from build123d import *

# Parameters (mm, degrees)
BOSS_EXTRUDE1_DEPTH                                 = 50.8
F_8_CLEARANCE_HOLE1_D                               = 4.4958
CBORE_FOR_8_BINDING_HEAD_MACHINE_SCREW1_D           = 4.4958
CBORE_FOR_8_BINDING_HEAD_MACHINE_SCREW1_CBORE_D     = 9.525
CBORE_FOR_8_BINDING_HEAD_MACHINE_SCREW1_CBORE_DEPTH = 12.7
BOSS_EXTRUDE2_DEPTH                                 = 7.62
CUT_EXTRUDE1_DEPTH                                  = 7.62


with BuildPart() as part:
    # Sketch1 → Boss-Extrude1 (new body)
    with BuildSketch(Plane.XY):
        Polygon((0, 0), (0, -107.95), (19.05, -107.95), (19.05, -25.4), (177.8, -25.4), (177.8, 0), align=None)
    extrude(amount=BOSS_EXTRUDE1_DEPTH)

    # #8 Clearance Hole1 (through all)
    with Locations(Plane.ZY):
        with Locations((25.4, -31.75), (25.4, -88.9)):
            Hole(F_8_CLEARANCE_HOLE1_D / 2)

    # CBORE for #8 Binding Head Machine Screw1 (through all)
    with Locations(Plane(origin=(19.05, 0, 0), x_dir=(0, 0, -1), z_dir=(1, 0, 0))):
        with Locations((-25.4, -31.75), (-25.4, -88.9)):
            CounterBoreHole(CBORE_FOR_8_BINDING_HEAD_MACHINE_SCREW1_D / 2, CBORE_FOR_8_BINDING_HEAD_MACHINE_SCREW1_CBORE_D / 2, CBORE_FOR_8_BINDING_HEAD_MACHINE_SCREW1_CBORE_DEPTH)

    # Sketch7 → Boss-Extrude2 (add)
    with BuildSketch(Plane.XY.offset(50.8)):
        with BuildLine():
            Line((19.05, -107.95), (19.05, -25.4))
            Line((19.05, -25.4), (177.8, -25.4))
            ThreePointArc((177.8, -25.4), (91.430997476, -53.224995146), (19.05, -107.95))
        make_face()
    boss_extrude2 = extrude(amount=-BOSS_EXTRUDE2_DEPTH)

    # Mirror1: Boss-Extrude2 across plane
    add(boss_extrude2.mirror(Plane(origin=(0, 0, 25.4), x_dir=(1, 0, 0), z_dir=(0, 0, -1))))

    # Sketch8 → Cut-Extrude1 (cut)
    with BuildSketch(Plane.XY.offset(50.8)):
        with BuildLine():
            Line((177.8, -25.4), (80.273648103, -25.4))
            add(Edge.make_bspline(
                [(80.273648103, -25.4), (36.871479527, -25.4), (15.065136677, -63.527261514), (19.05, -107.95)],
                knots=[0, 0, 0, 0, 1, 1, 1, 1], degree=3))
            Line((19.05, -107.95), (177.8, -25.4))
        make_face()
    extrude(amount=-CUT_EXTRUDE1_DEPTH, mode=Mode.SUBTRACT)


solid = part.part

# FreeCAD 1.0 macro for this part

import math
import FreeCAD as App
import Part
import Sketcher
from FreeCAD import Vector
Q = App.Units.Quantity

doc = App.newDocument("Part")
params = doc.addObject("Spreadsheet::Sheet", "Params")
for row, (alias, value) in enumerate([
    ("sketch1_width", "7 in"),
    ("sketch1_height", "1 in"),
    ("sketch1_width2", "0.75 in"),
    ("sketch1_height2", "4.25 in"),
    ("pad1_length", "2 in"),
    ("sketch2_diameter", "0.177 in"),
    ("hole_diameter", "0.177 in"),
    ("sketch3_diameter", "0.177 in"),
    ("hole2_diameter", "0.177 in"),
    ("hole2_cbore_diameter", "0.375 in"),
    ("hole2_cbore_depth", "0.5 in"),
    ("sketch4_width", "6.25 in"),
    ("sketch4_height", "3.25 in"),
    ("pad2_length", "0.3 in"),
    ("pocket1_length", "0.3 in"),
], start=1):
    params.set(f"A{row}", alias)
    params.set(f"B{row}", "=" + value)
    params.setAlias(f"B{row}", alias)

body = doc.addObject("PartDesign::Body", "Body")

# Sketch on XY plane
sketch1 = body.newObject("Sketcher::SketchObject", "Sketch")
sketch1.AttachmentSupport = (doc.getObject("XY_Plane"), [""])
sketch1.MapMode = "FlatFace"
sketch1.addGeometry([
    Part.LineSegment(Vector(0, 0, 0), Vector(0, -108, 0)),  # 0
    Part.LineSegment(Vector(0, -108, 0), Vector(19, -108, 0)),  # 1
    Part.LineSegment(Vector(19, -108, 0), Vector(19, -25, 0)),  # 2
    Part.LineSegment(Vector(19, -25, 0), Vector(178, -25, 0)),  # 3
    Part.LineSegment(Vector(178, -25, 0), Vector(178, 0, 0)),  # 4
    Part.LineSegment(Vector(178, 0, 0), Vector(0, 0, 0)),  # 5
], False)
sketch1.addConstraint([
    Sketcher.Constraint("Coincident", 0, 2, 1, 1),
    Sketcher.Constraint("Coincident", 1, 2, 2, 1),
    Sketcher.Constraint("Coincident", 2, 2, 3, 1),
    Sketcher.Constraint("Coincident", 3, 2, 4, 1),
    Sketcher.Constraint("Coincident", 4, 2, 5, 1),
    Sketcher.Constraint("Coincident", 5, 2, 0, 1),
    Sketcher.Constraint("Vertical", 0),
    Sketcher.Constraint("Horizontal", 1),
    Sketcher.Constraint("Vertical", 2),
    Sketcher.Constraint("Horizontal", 3),
    Sketcher.Constraint("Vertical", 4),
    Sketcher.Constraint("Horizontal", 5),
    Sketcher.Constraint("Coincident", 5, 2, -1, 1),
    Sketcher.Constraint("DistanceX", 5, 2, 5, 1, Q("7 in")),
    Sketcher.Constraint("DistanceY", 4, 1, 4, 2, Q("1 in")),
    Sketcher.Constraint("DistanceX", 1, 1, 1, 2, Q("0.75 in")),
    Sketcher.Constraint("DistanceY", 0, 2, 0, 1, Q("4.25 in")),
])
sketch1.setExpression("Constraints[13]", "Params.sketch1_width")
sketch1.setExpression("Constraints[14]", "Params.sketch1_height")
sketch1.setExpression("Constraints[15]", "Params.sketch1_width2")
sketch1.setExpression("Constraints[16]", "Params.sketch1_height2")
pad1 = body.newObject("PartDesign::Pad", "Pad")
pad1.Profile = sketch1
pad1.setExpression("Length", "Params.pad1_length")

# Sketch on YZ plane
sketch2 = body.newObject("Sketcher::SketchObject", "Sketch001")
sketch2.AttachmentSupport = (doc.getObject("YZ_Plane"), [""])
sketch2.MapMode = "FlatFace"
sketch2.addGeometry([
    Part.Circle(Vector(-31.8, 25.4, 0), Vector(0, 0, 1), 2.2),
    Part.Circle(Vector(-88.9, 25.4, 0), Vector(0, 0, 1), 2.2),
], False)
sketch2.addConstraint([
    Sketcher.Constraint("Equal", 0, 1),
    Sketcher.Constraint("Horizontal", 0, 3, 1, 3),
    Sketcher.Constraint("Diameter", 0, Q("0.177 in")),
    Sketcher.Constraint("DistanceY", -1, 1, 0, 3, Q("1 in")),
    Sketcher.Constraint("DistanceX", 1, 3, -1, 1, Q("3.5 in")),
    Sketcher.Constraint("DistanceX", 0, 3, -1, 1, Q("1.25 in")),
])
sketch2.setExpression("Constraints[2]", "Params.sketch2_diameter")
doc.recompute()
hole = body.newObject("PartDesign::Hole", "Hole")
hole.Profile = sketch2
hole.ThreadType = "None"
hole.setExpression("Diameter", "Params.hole_diameter")
hole.DepthType = "ThroughAll"
hole.Reversed = True

# Sketch on YZ plane
sketch3 = body.newObject("Sketcher::SketchObject", "Sketch002")
sketch3.AttachmentSupport = (doc.getObject("YZ_Plane"), [""])
sketch3.MapMode = "FlatFace"
sketch3.AttachmentOffset = App.Placement(Vector(0, 0, 0.75 * 25.4), App.Rotation())
sketch3.addGeometry([
    Part.Circle(Vector(-31.8, 25.4, 0), Vector(0, 0, 1), 2.2),
    Part.Circle(Vector(-88.9, 25.4, 0), Vector(0, 0, 1), 2.2),
], False)
sketch3.addConstraint([
    Sketcher.Constraint("Equal", 0, 1),
    Sketcher.Constraint("Horizontal", 0, 3, 1, 3),
    Sketcher.Constraint("Diameter", 0, Q("0.177 in")),
    Sketcher.Constraint("DistanceY", -1, 1, 0, 3, Q("1 in")),
    Sketcher.Constraint("DistanceX", 1, 3, -1, 1, Q("3.5 in")),
    Sketcher.Constraint("DistanceX", 0, 3, -1, 1, Q("1.25 in")),
])
sketch3.setExpression("Constraints[2]", "Params.sketch3_diameter")
doc.recompute()
hole2 = body.newObject("PartDesign::Hole", "Hole001")
hole2.Profile = sketch3
hole2.ThreadType = "None"
hole2.setExpression("Diameter", "Params.hole2_diameter")
hole2.DepthType = "ThroughAll"
hole2.HoleCutType = "Counterbore"
hole2.setExpression("HoleCutDiameter", "Params.hole2_cbore_diameter")
hole2.setExpression("HoleCutDepth", "Params.hole2_cbore_depth")

# Sketch on XY plane
sketch4 = body.newObject("Sketcher::SketchObject", "Sketch003")
sketch4.AttachmentSupport = (doc.getObject("XY_Plane"), [""])
sketch4.MapMode = "FlatFace"
sketch4.AttachmentOffset = App.Placement(Vector(0, 0, 2 * 25.4), App.Rotation())
sketch4.addGeometry([
    Part.LineSegment(Vector(19, -25, 0), Vector(19, -108, 0)),
    Part.ArcOfCircle(Part.Circle(Vector(217, -294, 0), Vector(0, 0, 1), 272), math.radians(98), math.radians(137)),
    Part.LineSegment(Vector(178, -25, 0), Vector(19, -25, 0)),
], False)
sketch4.addConstraint([
    Sketcher.Constraint("Coincident", 0, 2, 1, 2),
    Sketcher.Constraint("Coincident", 1, 1, 2, 1),
    Sketcher.Constraint("Coincident", 2, 2, 0, 1),
    Sketcher.Constraint("Vertical", 0),
    Sketcher.Constraint("Horizontal", 2),
    Sketcher.Constraint("DistanceX", -1, 1, 1, 1, Q("7 in")),
    Sketcher.Constraint("DistanceY", 1, 1, -1, 1, Q("1 in")),
    Sketcher.Constraint("DistanceX", 2, 2, 2, 1, Q("6.25 in")),
    Sketcher.Constraint("DistanceY", 0, 2, 0, 1, Q("3.25 in")),
    Sketcher.Constraint("Radius", 1, 271.568553),
])
sketch4.setExpression("Constraints[7]", "Params.sketch4_width")
sketch4.setExpression("Constraints[8]", "Params.sketch4_height")
pad2 = body.newObject("PartDesign::Pad", "Pad001")
pad2.Profile = sketch4
pad2.setExpression("Length", "Params.pad2_length")
pad2.Reversed = True
doc.recompute()

datumplane = body.newObject("PartDesign::Plane", "DatumPlane")
datumplane.AttachmentSupport = (doc.getObject("XY_Plane"), [""])
datumplane.MapMode = "FlatFace"
datumplane.AttachmentOffset = App.Placement(Vector(0, 0, 1 * 25.4), App.Rotation())
mirrored = body.newObject("PartDesign::Mirrored", "Mirrored")
mirrored.Originals = [pad2]
mirrored.MirrorPlane = (datumplane, [""])
body.Tip = mirrored

# Sketch on XY plane
sketch5 = body.newObject("Sketcher::SketchObject", "Sketch004")
sketch5.AttachmentSupport = (doc.getObject("XY_Plane"), [""])
sketch5.MapMode = "FlatFace"
sketch5.AttachmentOffset = App.Placement(Vector(0, 0, 2 * 25.4), App.Rotation())
sketch5.addGeometry([
    Part.LineSegment(Vector(177.8, -25.4, 0), Vector(80.273648, -25.4, 0)),
    Part.BSplineCurve([Vector(80.273648, -25.4, 0), Vector(36.87148, -25.4, 0), Vector(15.065137, -63.527262, 0), Vector(19.05, -107.95, 0)], [4, 4], [0, 1], False, 3, [1, 1, 1, 1], False),
    Part.LineSegment(Vector(19.05, -107.95, 0), Vector(177.8, -25.4, 0)),
], False)
sketch5.addConstraint([
    Sketcher.Constraint("Block", 1),
    Sketcher.Constraint("Coincident", 0, 2, 1, 1),
    Sketcher.Constraint("Coincident", 1, 2, 2, 1),
    Sketcher.Constraint("Coincident", 2, 2, 0, 1),
    Sketcher.Constraint("Horizontal", 0),
    Sketcher.Constraint("DistanceX", -1, 1, 2, 2, Q("7 in")),
])
pocket1 = body.newObject("PartDesign::Pocket", "Pocket")
pocket1.Profile = sketch5
pocket1.setExpression("Length", "Params.pocket1_length")

doc.recompute()
